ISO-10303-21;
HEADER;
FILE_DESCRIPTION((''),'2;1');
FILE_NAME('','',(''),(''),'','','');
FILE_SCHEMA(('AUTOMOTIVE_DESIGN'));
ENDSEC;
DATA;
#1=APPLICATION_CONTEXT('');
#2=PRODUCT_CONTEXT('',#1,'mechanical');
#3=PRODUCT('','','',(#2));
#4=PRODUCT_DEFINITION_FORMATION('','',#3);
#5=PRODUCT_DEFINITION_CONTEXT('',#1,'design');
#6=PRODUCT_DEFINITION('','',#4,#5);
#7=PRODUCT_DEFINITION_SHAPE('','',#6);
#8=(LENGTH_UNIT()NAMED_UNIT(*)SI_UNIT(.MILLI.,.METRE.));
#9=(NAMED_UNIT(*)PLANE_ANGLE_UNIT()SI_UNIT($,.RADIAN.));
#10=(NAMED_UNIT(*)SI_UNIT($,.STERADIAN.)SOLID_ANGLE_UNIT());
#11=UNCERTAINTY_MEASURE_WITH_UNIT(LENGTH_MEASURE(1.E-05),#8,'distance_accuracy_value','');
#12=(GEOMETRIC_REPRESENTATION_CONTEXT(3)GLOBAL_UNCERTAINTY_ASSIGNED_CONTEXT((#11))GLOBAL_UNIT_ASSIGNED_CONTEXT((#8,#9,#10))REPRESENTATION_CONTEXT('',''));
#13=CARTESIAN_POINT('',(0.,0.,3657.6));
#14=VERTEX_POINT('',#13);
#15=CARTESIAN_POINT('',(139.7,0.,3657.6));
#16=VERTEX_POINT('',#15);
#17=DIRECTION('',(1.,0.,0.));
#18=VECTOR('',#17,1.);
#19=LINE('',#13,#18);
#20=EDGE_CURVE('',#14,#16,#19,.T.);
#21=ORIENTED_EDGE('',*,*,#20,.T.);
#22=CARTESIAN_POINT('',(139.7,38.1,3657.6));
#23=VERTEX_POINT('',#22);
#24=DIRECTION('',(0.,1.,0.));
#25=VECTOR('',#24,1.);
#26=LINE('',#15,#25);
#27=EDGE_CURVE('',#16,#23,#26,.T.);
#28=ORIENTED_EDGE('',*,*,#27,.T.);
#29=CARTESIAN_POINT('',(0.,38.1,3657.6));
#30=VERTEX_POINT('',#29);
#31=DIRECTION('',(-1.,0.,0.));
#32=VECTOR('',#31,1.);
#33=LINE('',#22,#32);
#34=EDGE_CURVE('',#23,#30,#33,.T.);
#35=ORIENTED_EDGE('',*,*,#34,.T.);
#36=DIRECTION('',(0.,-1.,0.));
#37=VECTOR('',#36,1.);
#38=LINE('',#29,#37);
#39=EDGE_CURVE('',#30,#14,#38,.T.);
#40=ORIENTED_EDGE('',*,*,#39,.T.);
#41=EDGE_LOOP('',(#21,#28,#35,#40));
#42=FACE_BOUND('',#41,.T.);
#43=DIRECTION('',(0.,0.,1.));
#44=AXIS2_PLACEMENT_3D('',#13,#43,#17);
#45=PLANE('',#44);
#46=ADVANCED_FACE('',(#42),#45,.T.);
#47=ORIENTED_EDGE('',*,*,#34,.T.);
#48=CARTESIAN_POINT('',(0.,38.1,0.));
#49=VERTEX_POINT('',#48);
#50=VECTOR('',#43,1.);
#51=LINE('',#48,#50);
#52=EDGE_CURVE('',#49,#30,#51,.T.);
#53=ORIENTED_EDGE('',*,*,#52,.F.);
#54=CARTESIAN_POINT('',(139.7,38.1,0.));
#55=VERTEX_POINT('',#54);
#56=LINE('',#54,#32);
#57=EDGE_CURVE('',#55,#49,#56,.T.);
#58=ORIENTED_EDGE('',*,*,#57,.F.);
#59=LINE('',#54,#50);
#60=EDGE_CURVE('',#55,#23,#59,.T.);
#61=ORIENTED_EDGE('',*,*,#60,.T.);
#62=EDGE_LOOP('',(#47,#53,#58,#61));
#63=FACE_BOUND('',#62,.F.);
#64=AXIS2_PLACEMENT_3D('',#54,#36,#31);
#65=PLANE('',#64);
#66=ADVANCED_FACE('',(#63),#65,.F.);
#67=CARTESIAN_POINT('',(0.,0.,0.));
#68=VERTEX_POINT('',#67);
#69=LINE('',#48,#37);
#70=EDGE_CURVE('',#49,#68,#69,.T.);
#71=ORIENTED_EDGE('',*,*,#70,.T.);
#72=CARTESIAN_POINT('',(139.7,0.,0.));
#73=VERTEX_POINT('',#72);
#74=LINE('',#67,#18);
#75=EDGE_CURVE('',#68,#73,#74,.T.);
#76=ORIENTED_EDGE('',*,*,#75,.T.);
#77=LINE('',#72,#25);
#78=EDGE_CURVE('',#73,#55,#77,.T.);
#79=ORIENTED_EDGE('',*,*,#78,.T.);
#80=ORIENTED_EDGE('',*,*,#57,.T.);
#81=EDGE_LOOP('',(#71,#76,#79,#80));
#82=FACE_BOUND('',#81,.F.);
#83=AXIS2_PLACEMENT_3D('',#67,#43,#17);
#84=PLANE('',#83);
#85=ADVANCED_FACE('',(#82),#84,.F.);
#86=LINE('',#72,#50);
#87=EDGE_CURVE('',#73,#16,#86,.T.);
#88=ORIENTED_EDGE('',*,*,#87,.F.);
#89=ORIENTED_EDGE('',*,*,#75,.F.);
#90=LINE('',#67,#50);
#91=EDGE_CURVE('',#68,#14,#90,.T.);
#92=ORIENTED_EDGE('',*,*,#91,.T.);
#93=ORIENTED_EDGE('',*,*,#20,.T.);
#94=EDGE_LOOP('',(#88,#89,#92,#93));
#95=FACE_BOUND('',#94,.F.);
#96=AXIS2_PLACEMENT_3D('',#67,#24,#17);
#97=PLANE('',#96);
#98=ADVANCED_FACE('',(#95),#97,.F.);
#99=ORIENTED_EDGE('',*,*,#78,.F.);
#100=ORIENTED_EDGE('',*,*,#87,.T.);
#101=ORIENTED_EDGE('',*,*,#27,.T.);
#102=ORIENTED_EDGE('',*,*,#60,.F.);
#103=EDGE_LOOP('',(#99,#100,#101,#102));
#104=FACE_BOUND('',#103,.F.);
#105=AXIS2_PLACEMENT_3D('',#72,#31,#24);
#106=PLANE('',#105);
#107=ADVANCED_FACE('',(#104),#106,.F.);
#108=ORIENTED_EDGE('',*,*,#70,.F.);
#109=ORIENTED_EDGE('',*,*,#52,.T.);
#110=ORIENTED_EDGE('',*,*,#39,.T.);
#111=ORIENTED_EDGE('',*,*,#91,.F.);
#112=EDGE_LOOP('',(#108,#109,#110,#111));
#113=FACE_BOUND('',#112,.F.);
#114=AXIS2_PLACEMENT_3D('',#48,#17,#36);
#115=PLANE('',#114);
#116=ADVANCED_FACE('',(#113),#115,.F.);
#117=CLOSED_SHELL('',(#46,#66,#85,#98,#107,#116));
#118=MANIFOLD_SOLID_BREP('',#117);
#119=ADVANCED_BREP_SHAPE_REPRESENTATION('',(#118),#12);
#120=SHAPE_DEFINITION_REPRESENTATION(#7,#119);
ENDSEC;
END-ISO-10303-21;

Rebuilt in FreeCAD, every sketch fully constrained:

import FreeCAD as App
import Part
import Sketcher
Q = App.Units.Quantity

doc = App.newDocument("Part")
body = doc.addObject("PartDesign::Body", "Body")

sketch1 = body.newObject("Sketcher::SketchObject", "Sketch")
sketch1.AttachmentSupport = (doc.getObject("XY_Plane"), [""])
sketch1.MapMode = "FlatFace"
sketch1.addGeometry([
    Part.LineSegment(App.Vector(0, 38, 0), App.Vector(0, 0, 0)),
    Part.LineSegment(App.Vector(0, 0, 0), App.Vector(140, 0, 0)),
    Part.LineSegment(App.Vector(140, 0, 0), App.Vector(140, 38, 0)),
    Part.LineSegment(App.Vector(140, 38, 0), App.Vector(0, 38, 0)),
], False)
sketch1.addConstraint([
    Sketcher.Constraint("Coincident", 0, 2, 1, 1),
    Sketcher.Constraint("Coincident", 1, 2, 2, 1),
    Sketcher.Constraint("Coincident", 2, 2, 3, 1),
    Sketcher.Constraint("Coincident", 3, 2, 0, 1),
    Sketcher.Constraint("Vertical", 0),
    Sketcher.Constraint("Horizontal", 1),
    Sketcher.Constraint("Vertical", 2),
    Sketcher.Constraint("Horizontal", 3),
    Sketcher.Constraint("Coincident", 0, 2, -1, 1),
    Sketcher.Constraint("DistanceX", 1, 1, 1, 2, Q("5.5 in")),
    Sketcher.Constraint("DistanceY", 0, 2, 0, 1, Q("1.5 in")),
])
pad1 = body.newObject("PartDesign::Pad", "Pad")
pad1.Profile = sketch1
pad1.Length = Q("144 in")

doc.recompute()
